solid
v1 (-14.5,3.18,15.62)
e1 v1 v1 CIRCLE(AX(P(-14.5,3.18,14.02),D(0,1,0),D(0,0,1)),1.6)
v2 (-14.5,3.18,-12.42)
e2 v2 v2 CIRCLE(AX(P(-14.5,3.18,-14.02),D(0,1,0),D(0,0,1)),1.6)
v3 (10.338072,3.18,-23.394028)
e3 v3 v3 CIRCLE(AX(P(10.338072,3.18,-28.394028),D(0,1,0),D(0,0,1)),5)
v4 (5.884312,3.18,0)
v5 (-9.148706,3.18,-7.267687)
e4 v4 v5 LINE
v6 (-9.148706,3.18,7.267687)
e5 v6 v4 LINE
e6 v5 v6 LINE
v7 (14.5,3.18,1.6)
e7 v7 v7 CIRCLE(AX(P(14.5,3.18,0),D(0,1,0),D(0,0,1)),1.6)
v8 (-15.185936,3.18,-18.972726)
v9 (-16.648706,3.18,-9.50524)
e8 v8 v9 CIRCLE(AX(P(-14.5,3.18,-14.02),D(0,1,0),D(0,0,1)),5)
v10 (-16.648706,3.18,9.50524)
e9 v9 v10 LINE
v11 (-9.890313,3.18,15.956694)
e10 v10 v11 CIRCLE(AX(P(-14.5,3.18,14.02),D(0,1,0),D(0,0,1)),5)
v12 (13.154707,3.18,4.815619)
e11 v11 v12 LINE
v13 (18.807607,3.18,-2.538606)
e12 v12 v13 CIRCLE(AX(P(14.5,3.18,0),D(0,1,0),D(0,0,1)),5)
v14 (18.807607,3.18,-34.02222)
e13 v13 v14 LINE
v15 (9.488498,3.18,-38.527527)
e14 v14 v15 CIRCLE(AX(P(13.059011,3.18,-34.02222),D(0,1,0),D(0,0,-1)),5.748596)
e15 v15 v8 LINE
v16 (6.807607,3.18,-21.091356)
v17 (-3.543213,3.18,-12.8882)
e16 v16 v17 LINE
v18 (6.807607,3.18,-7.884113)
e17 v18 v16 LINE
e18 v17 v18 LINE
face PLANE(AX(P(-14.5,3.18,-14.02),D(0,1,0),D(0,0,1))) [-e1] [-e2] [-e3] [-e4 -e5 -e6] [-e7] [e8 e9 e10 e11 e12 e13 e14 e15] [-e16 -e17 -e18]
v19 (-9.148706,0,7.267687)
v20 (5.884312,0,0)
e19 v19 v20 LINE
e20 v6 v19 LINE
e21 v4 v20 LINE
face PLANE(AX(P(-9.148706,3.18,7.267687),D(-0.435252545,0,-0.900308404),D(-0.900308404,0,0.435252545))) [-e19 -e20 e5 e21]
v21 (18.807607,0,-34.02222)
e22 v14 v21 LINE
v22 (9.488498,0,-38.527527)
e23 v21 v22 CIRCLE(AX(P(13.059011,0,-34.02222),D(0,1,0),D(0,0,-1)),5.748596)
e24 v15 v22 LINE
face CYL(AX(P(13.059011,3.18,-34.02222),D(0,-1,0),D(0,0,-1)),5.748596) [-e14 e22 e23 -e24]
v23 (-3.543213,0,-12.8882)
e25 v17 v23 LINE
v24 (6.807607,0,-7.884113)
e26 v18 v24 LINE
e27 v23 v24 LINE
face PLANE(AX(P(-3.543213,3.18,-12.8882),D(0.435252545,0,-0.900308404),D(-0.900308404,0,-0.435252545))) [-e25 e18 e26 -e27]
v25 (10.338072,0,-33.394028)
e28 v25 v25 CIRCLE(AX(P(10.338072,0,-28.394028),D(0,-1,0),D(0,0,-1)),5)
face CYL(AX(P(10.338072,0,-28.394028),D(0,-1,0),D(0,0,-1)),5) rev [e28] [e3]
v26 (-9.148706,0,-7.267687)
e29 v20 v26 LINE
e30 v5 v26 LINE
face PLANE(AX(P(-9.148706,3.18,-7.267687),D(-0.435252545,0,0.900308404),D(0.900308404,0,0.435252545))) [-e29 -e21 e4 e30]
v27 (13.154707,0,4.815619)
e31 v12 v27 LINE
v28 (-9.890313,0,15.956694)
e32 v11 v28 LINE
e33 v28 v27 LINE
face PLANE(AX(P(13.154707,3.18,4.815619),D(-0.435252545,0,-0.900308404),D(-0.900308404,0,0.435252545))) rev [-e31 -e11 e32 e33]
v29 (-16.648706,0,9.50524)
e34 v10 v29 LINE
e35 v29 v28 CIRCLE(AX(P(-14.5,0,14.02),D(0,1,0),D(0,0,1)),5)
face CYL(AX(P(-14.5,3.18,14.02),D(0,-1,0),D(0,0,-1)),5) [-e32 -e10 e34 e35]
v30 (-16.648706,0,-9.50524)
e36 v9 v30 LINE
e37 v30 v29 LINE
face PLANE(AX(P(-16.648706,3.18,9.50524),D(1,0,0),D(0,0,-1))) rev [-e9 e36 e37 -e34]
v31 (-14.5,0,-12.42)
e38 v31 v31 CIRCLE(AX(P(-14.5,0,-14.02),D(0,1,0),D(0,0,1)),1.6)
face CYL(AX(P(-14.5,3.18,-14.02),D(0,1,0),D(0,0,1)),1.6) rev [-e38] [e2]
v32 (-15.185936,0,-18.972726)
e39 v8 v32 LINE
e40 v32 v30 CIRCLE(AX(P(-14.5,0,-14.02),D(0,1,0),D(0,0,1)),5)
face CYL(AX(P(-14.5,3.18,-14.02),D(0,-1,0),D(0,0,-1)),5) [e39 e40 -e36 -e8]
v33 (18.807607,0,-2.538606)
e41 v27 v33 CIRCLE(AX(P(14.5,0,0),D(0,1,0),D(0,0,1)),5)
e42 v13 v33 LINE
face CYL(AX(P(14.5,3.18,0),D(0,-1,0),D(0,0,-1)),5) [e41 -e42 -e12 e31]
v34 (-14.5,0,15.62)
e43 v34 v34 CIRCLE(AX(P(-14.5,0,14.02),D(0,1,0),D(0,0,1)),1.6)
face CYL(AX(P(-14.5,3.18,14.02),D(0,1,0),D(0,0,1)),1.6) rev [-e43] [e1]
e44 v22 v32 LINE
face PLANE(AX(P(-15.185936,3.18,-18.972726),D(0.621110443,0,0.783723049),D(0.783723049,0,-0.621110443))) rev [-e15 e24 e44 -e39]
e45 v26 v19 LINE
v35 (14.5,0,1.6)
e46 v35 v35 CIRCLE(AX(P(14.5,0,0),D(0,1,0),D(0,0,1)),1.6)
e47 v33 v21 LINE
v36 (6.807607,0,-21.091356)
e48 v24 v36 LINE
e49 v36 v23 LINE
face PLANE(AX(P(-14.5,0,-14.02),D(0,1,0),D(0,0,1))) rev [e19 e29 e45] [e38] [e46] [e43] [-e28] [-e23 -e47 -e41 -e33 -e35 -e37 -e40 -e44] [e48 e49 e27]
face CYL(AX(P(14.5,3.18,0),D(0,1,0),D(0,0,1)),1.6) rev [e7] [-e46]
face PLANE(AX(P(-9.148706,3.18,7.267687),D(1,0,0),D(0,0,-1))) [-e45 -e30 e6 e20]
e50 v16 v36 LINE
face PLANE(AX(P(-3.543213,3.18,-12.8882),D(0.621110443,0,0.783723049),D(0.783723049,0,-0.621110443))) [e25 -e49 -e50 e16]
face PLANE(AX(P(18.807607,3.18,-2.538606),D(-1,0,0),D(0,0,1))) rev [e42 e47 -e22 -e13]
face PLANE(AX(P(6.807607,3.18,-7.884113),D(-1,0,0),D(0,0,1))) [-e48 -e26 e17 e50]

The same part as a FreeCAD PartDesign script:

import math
import FreeCAD as App
import Part
import Sketcher
from FreeCAD import Vector


def add_polygon(sketch, points):
    """Adds a closed chain of lines whose ends are joined by coincident constraints."""
    first, n = sketch.GeometryCount, len(points)
    for a, b in zip(points, points[1:] + points[:1]):
        sketch.addGeometry(Part.LineSegment(App.Vector(*a, 0), App.Vector(*b, 0)), False)
    for i in range(n):
        sketch.addConstraint(Sketcher.Constraint("Coincident", first + i, 2, first + (i + 1) % n, 1))

doc = App.newDocument("Part")
body = doc.addObject("PartDesign::Body", "Body")

sketch1 = doc.addObject("Sketcher::SketchObject", "Sketch")
body.addObject(sketch1)
sketch1.AttachmentSupport = (doc.XZ_Plane, [""])
sketch1.MapMode = "FlatFace"
sketch1.addGeometry(Part.LineSegment(Vector(-17, -10, 0), Vector(-17, 10, 0)), False)
sketch1.addGeometry(Part.ArcOfCircle(Part.Circle(Vector(-14, 14, 0), Vector(0, 0, 1), 5), math.radians(23), math.radians(245)), False)
sketch1.addGeometry(Part.LineSegment(Vector(-10, 16, 0), Vector(13, 5, 0)), False)
sketch1.addGeometry(Part.ArcOfCircle(Part.Circle(Vector(14, 0, 0), Vector(0, 0, 1), 5), math.radians(-31), math.radians(106)), False)
sketch1.addGeometry(Part.LineSegment(Vector(19, -3, 0), Vector(19, -34, 0)), False)
sketch1.addGeometry(Part.ArcOfCircle(Part.Circle(Vector(13, -34, 0), Vector(0, 0, 1), 6), math.radians(-128), math.radians(0)), False)
sketch1.addGeometry(Part.LineSegment(Vector(9, -39, 0), Vector(-15, -19, 0)), False)
sketch1.addGeometry(Part.ArcOfCircle(Part.Circle(Vector(-14, -14, 0), Vector(0, 0, 1), 5), math.radians(115), math.radians(262)), False)
add_polygon(sketch1, [(-9, -7), (6, 0), (-9, 7)])
add_polygon(sketch1, [(-4, -13), (7, -21), (7, -8)])
sketch1.addConstraint([
    Sketcher.Constraint("Coincident", 0, 2, 1, 2),
    Sketcher.Constraint("Coincident", 1, 1, 2, 1),
    Sketcher.Constraint("Coincident", 2, 2, 3, 2),
    Sketcher.Constraint("Coincident", 3, 1, 4, 1),
    Sketcher.Constraint("Tangent", 4, 2, 5, 2),
    Sketcher.Constraint("Tangent", 5, 1, 6, 1),
    Sketcher.Constraint("Coincident", 6, 2, 7, 2),
    Sketcher.Constraint("Coincident", 7, 1, 0, 1),
    Sketcher.Constraint("Vertical", 0),
    Sketcher.Constraint("Vertical", 4),
    Sketcher.Constraint("Vertical", 10),
    Sketcher.Constraint("Vertical", 12),
    Sketcher.Constraint("Equal", 1, 3),
    Sketcher.Constraint("Equal", 3, 7),
    Sketcher.Constraint("Symmetric", 1, 3, 7, 3, -1),
    Sketcher.Constraint("PointOnObject", 3, 3, -1),
    Sketcher.Constraint("PointOnObject", 8, 2, -1),
    Sketcher.Constraint("Parallel", 2, 9),
    Sketcher.Constraint("Parallel", 6, 11),
    Sketcher.Constraint("Parallel", 8, 13),
    Sketcher.Constraint("Equal", 8, 9),
    Sketcher.Constraint("Radius", 1, 5.0),
    Sketcher.Constraint("DistanceX", 1, 3, 3, 3, 29.0),
    Sketcher.Constraint("DistanceX", 11, 2, 4, 2, 12.0),
    Sketcher.Constraint("DistanceX", 1, 3, -1, 1, 14.5),
    Sketcher.Constraint("DistanceX", 0, 2, 9, 2, 7.5),
    Sketcher.Constraint("DistanceY", -1, 1, 1, 3, 14.02),
    Sketcher.Constraint("Radius", 5, 5.748596),
    Sketcher.Constraint("DistanceY", 0, 1, 0, 2, 19.010479),
    Sketcher.Constraint("DistanceX", -1, 1, 5, 1, 9.488498),
    Sketcher.Constraint("DistanceY", 13, 2, -1, 1, 12.8882),
    Sketcher.Constraint("DistanceX", 2, 2, 3, 1, 5.6529),
    Sketcher.Constraint("DistanceY", 3, 1, 1, 1, 18.4953),
    Sketcher.Constraint("DistanceY", 5, 1, 6, 2, 19.554802),
    Sketcher.Constraint("Distance", 13, 11.496972),
    Sketcher.Constraint("DistanceY", 4, 2, 4, 1, 31.483614),
    Sketcher.Constraint("DistanceY", 10, 2, 10, 1, 14.535374),
])
pad1 = doc.addObject("PartDesign::Pad", "Pad")
body.addObject(pad1)
pad1.Profile = sketch1
pad1.Length = 3.18
pad1.Reversed = True

sketch2 = doc.addObject("Sketcher::SketchObject", "Sketch001")
body.addObject(sketch2)
sketch2.AttachmentSupport = (doc.XZ_Plane, [""])
sketch2.MapMode = "FlatFace"
sketch2.AttachmentOffset = App.Placement(Vector(0, 0, -3.18), App.Rotation())
sketch2.addGeometry([
    Part.Circle(Vector(14.5, 0, 0), Vector(0, 0, 1), 1.6),
    Part.Circle(Vector(-14.5, 14, 0), Vector(0, 0, 1), 1.6),
    Part.Circle(Vector(-14.5, -14, 0), Vector(0, 0, 1), 1.6),
], False)
sketch2.addConstraint([
    Sketcher.Constraint("Equal", 0, 1),
    Sketcher.Constraint("Equal", 1, 2),
    Sketcher.Constraint("Symmetric", 1, 3, 2, 3, -1),
    Sketcher.Constraint("PointOnObject", 0, 3, -1),
    Sketcher.Constraint("Diameter", 0, 3.2),
    Sketcher.Constraint("DistanceX", 1, 3, 0, 3, 29.0),
    Sketcher.Constraint("DistanceX", -1, 1, 0, 3, 14.5),
    Sketcher.Constraint("DistanceY", -1, 1, 1, 3, 14.02),
])
doc.recompute()
hole = doc.addObject("PartDesign::Hole", "Hole")
body.addObject(hole)
hole.Profile = sketch2
hole.ThreadType = "None"
hole.Diameter = 3.2
hole.DepthType = "Dimension"
hole.Depth = 3.18
hole.DrillPoint = "Flat"
hole.Reversed = True

sketch3 = doc.addObject("Sketcher::SketchObject", "Sketch002")
body.addObject(sketch3)
sketch3.AttachmentSupport = (doc.XZ_Plane, [""])
sketch3.MapMode = "FlatFace"
sketch3.addGeometry(Part.Circle(Vector(10, -28, 0), Vector(0, 0, 1), 5), False)
sketch3.addConstraint([
    Sketcher.Constraint("Diameter", 0, 10.0),
    Sketcher.Constraint("DistanceX", -1, 1, 0, 3, 10.338072),
    Sketcher.Constraint("DistanceY", 0, 3, -1, 1, 28.394028),
])
doc.recompute()
hole2 = doc.addObject("PartDesign::Hole", "Hole001")
body.addObject(hole2)
hole2.Profile = sketch3
hole2.ThreadType = "None"
hole2.Diameter = 10
hole2.DepthType = "Dimension"
hole2.Depth = 3.18
hole2.DrillPoint = "Flat"

doc.recompute()
